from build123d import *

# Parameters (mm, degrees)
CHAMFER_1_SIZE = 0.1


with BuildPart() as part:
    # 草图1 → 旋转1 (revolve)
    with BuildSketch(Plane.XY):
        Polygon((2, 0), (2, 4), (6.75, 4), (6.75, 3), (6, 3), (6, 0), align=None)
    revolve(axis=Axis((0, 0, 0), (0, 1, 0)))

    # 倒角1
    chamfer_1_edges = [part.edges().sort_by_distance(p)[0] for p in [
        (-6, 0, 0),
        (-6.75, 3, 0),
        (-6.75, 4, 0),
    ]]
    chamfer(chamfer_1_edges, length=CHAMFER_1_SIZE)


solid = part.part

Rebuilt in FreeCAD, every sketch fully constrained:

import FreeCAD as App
import Part
import Sketcher
Q = App.Units.Quantity


def edges_at(feature, points):
    """Names of the edges that pass closest to the given points."""
    edges = feature.Shape.Edges
    near = lambda p: min(range(len(edges)), key=lambda i: edges[i].distToShape(Part.Vertex(*p))[0])
    return sorted({f"Edge{near(p) + 1}" for p in points})

doc = App.newDocument("Part")
body = doc.addObject("PartDesign::Body", "Body")

# Sketch on XY plane
sketch1 = body.newObject("Sketcher::SketchObject", "Sketch")
sketch1.AttachmentSupport = (doc.getObject("XY_Plane"), [""])
sketch1.MapMode = "FlatFace"
sketch1.addGeometry(Part.LineSegment(App.Vector(2, 4, 0), App.Vector(2, 0, 0)), False)
sketch1.addGeometry(Part.LineSegment(App.Vector(2, 0, 0), App.Vector(6, 0, 0)), False)
sketch1.addGeometry(Part.LineSegment(App.Vector(6, 0, 0), App.Vector(6, 3, 0)), False)
sketch1.addGeometry(Part.LineSegment(App.Vector(6, 3, 0), App.Vector(6.75, 3, 0)), False)
sketch1.addGeometry(Part.LineSegment(App.Vector(6.75, 3, 0), App.Vector(6.75, 4, 0)), False)
sketch1.addGeometry(Part.LineSegment(App.Vector(6.75, 4, 0), App.Vector(2, 4, 0)), False)
sketch1.addConstraint(Sketcher.Constraint("Coincident", 0, 2, 1, 1))
sketch1.addConstraint(Sketcher.Constraint("Coincident", 1, 2, 2, 1))
sketch1.addConstraint(Sketcher.Constraint("Coincident", 2, 2, 3, 1))
sketch1.addConstraint(Sketcher.Constraint("Coincident", 3, 2, 4, 1))
sketch1.addConstraint(Sketcher.Constraint("Coincident", 4, 2, 5, 1))
sketch1.addConstraint(Sketcher.Constraint("Coincident", 5, 2, 0, 1))
sketch1.addConstraint(Sketcher.Constraint("Vertical", 0))
sketch1.addConstraint(Sketcher.Constraint("Horizontal", 1))
sketch1.addConstraint(Sketcher.Constraint("Vertical", 2))
sketch1.addConstraint(Sketcher.Constraint("Horizontal", 3))
sketch1.addConstraint(Sketcher.Constraint("Vertical", 4))
sketch1.addConstraint(Sketcher.Constraint("Horizontal", 5))
sketch1.addConstraint(Sketcher.Constraint("PointOnObject", 0, 2, -1))
sketch1.addConstraint(Sketcher.Constraint("Equal", 1, 0))
sketch1.addConstraint(Sketcher.Constraint("DistanceX", 1, 1, 1, 2, Q("4 mm")))
sketch1.addConstraint(Sketcher.Constraint("DistanceY", 2, 1, 2, 2, Q("3 mm")))
sketch1.addConstraint(Sketcher.Constraint("DistanceX", -1, 1, 0, 2, Q("2 mm")))
sketch1.addConstraint(Sketcher.Constraint("DistanceX", 3, 1, 3, 2, Q("0.75 mm")))
revolution = body.newObject("PartDesign::Revolution", "Revolution")
revolution.Profile = sketch1
revolution.ReferenceAxis = (sketch1, ["V_Axis"])
revolution.Angle = 360
doc.recompute()

chamfer = body.newObject("PartDesign::Chamfer", "Chamfer")
chamfer.Base = (revolution, edges_at(revolution, [(-6, 0, 0), (-6.75, 3, 0), (-6.75, 4, 0)]))
chamfer.Size = 0.1

doc.recompute()
